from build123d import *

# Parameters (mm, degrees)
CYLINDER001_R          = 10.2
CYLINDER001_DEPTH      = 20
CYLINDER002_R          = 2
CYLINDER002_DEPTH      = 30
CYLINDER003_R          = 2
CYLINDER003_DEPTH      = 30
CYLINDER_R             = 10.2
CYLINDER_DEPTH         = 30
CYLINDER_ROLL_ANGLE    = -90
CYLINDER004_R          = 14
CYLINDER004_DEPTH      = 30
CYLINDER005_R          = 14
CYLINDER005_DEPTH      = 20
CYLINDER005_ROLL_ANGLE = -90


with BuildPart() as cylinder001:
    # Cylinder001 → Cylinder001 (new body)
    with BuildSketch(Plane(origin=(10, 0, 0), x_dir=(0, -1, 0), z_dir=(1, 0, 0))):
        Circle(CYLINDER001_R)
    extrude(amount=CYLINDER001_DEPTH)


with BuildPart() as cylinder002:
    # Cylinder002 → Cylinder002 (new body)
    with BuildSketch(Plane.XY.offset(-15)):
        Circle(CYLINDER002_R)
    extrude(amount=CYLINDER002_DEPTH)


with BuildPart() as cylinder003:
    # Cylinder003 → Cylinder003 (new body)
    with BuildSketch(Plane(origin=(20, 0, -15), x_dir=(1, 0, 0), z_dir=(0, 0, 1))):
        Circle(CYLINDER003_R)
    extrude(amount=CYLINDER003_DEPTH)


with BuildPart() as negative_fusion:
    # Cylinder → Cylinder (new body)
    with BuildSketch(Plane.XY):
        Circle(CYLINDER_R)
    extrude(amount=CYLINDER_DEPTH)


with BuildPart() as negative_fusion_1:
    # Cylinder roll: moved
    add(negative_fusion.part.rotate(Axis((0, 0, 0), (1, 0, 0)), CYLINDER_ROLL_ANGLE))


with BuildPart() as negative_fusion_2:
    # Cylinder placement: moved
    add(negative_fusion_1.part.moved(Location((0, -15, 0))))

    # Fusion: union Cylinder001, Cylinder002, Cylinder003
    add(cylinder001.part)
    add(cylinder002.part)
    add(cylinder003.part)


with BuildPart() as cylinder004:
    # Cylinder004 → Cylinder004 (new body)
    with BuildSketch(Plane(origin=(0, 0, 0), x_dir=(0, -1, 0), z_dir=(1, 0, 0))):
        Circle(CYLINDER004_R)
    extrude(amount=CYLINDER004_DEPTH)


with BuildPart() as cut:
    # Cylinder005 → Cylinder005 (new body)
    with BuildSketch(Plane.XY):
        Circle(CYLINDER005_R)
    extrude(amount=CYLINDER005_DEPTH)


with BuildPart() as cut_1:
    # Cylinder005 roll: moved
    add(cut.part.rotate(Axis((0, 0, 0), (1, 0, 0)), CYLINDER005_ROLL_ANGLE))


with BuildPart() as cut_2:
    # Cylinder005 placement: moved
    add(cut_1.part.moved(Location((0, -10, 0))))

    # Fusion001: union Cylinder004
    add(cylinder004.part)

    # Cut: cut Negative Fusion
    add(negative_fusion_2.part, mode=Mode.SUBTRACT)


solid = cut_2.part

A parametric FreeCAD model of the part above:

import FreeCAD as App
import Part
import Sketcher
Q = App.Units.Quantity

doc = App.newDocument("Part")
body = doc.addObject("PartDesign::Body", "Body")

# Sketch on YZ plane
sketch1 = doc.addObject("Sketcher::SketchObject", "Sketch")
body.addObject(sketch1)
sketch1.AttachmentSupport = (doc.YZ_Plane, [""])
sketch1.MapMode = "FlatFace"
sketch1.AttachmentOffset = App.Placement(App.Vector(0, 0, 10), App.Rotation())
sketch1.addGeometry(Part.Circle(App.Vector(0, 0, 0), App.Vector(0, 0, 1), 10.2), False)
sketch1.addConstraint(Sketcher.Constraint("Coincident", 0, 3, -1, 1))
sketch1.addConstraint(Sketcher.Constraint("Diameter", 0, Q("20.4 mm")))
pad1 = doc.addObject("PartDesign::Pad", "Pad")
body.addObject(pad1)
pad1.Profile = sketch1
pad1.Length = 20
body2 = doc.addObject("PartDesign::Body", "Body001")

# Sketch on XY plane
sketch2 = doc.addObject("Sketcher::SketchObject", "Sketch001")
body2.addObject(sketch2)
sketch2.AttachmentSupport = (doc.getObject("XY_Plane001"), [""])
sketch2.MapMode = "FlatFace"
sketch2.AttachmentOffset = App.Placement(App.Vector(0, 0, -15), App.Rotation())
sketch2.addGeometry(Part.Circle(App.Vector(0, 0, 0), App.Vector(0, 0, 1), 2), False)
sketch2.addConstraint(Sketcher.Constraint("Coincident", 0, 3, -1, 1))
sketch2.addConstraint(Sketcher.Constraint("Diameter", 0, Q("4 mm")))
pad2 = doc.addObject("PartDesign::Pad", "Pad001")
body2.addObject(pad2)
pad2.Profile = sketch2
pad2.Length = 30
body3 = doc.addObject("PartDesign::Body", "Body002")

# Sketch on XY plane
sketch3 = doc.addObject("Sketcher::SketchObject", "Sketch002")
body3.addObject(sketch3)
sketch3.AttachmentSupport = (doc.getObject("XY_Plane002"), [""])
sketch3.MapMode = "FlatFace"
sketch3.AttachmentOffset = App.Placement(App.Vector(0, 0, -15), App.Rotation())
sketch3.addGeometry(Part.Circle(App.Vector(20, 0, 0), App.Vector(0, 0, 1), 2), False)
sketch3.addConstraint(Sketcher.Constraint("PointOnObject", 0, 3, -1))
sketch3.addConstraint(Sketcher.Constraint("Diameter", 0, Q("4 mm")))
sketch3.addConstraint(Sketcher.Constraint("DistanceX", -1, 1, 0, 3, Q("20 mm")))
pad3 = doc.addObject("PartDesign::Pad", "Pad002")
body3.addObject(pad3)
pad3.Profile = sketch3
pad3.Length = 30
body4 = doc.addObject("PartDesign::Body", "Body003")

# Sketch on XY plane
sketch4 = doc.addObject("Sketcher::SketchObject", "Sketch003")
body4.addObject(sketch4)
sketch4.AttachmentSupport = (doc.getObject("XY_Plane003"), [""])
sketch4.MapMode = "FlatFace"
sketch4.addGeometry(Part.Circle(App.Vector(0, 0, 0), App.Vector(0, 0, 1), 10.2), False)
sketch4.addConstraint(Sketcher.Constraint("Coincident", 0, 3, -1, 1))
sketch4.addConstraint(Sketcher.Constraint("Diameter", 0, Q("20.4 mm")))
pad4 = doc.addObject("PartDesign::Pad", "Pad003")
body4.addObject(pad4)
pad4.Profile = sketch4
pad4.Length = 30
body5 = doc.addObject("PartDesign::Body", "Body004")
doc.recompute()

body4.Placement = App.Placement(App.Vector(0, 0, 0), App.Rotation(App.Vector(1, 0, 0), 270))
boolean = doc.addObject("PartDesign::Boolean", "Boolean")
body5.addObject(boolean)
boolean.Type = "Fuse"
boolean.addObjects([body4])
body6 = doc.addObject("PartDesign::Body", "Body005")
doc.recompute()

body5.Placement = App.Placement(App.Vector(0, -15, 0), App.Rotation(App.Vector(0, 0, 1), 0))
boolean2 = doc.addObject("PartDesign::Boolean", "Boolean001")
body6.addObject(boolean2)
boolean2.Type = "Fuse"
boolean2.addObjects([body5])
doc.recompute()

boolean3 = doc.addObject("PartDesign::Boolean", "Boolean002")
body6.addObject(boolean3)
boolean3.Type = "Fuse"
boolean3.addObjects([body])
doc.recompute()

boolean4 = doc.addObject("PartDesign::Boolean", "Boolean003")
body6.addObject(boolean4)
boolean4.Type = "Fuse"
boolean4.addObjects([body2])
doc.recompute()

boolean5 = doc.addObject("PartDesign::Boolean", "Boolean004")
body6.addObject(boolean5)
boolean5.Type = "Fuse"
boolean5.addObjects([body3])
body7 = doc.addObject("PartDesign::Body", "Body006")

# Sketch on YZ plane
sketch5 = doc.addObject("Sketcher::SketchObject", "Sketch004")
body7.addObject(sketch5)
sketch5.AttachmentSupport = (doc.getObject("YZ_Plane006"), [""])
sketch5.MapMode = "FlatFace"
sketch5.addGeometry(Part.Circle(App.Vector(0, 0, 0), App.Vector(0, 0, 1), 14), False)
sketch5.addConstraint(Sketcher.Constraint("Coincident", 0, 3, -1, 1))
sketch5.addConstraint(Sketcher.Constraint("Diameter", 0, Q("28 mm")))
pad5 = doc.addObject("PartDesign::Pad", "Pad004")
body7.addObject(pad5)
pad5.Profile = sketch5
pad5.Length = 30
body8 = doc.addObject("PartDesign::Body", "Body007")

# Sketch on XY plane
sketch6 = doc.addObject("Sketcher::SketchObject", "Sketch005")
body8.addObject(sketch6)
sketch6.AttachmentSupport = (doc.getObject("XY_Plane007"), [""])
sketch6.MapMode = "FlatFace"
sketch6.addGeometry(Part.Circle(App.Vector(0, 0, 0), App.Vector(0, 0, 1), 14), False)
sketch6.addConstraint(Sketcher.Constraint("Coincident", 0, 3, -1, 1))
sketch6.addConstraint(Sketcher.Constraint("Diameter", 0, Q("28 mm")))
pad6 = doc.addObject("PartDesign::Pad", "Pad005")
body8.addObject(pad6)
pad6.Profile = sketch6
pad6.Length = 20
body9 = doc.addObject("PartDesign::Body", "Body008")
doc.recompute()

body8.Placement = App.Placement(App.Vector(0, 0, 0), App.Rotation(App.Vector(1, 0, 0), 270))
boolean6 = doc.addObject("PartDesign::Boolean", "Boolean005")
body9.addObject(boolean6)
boolean6.Type = "Fuse"
boolean6.addObjects([body8])
body10 = doc.addObject("PartDesign::Body", "Body009")
doc.recompute()

body9.Placement = App.Placement(App.Vector(0, -10, 0), App.Rotation(App.Vector(0, 0, 1), 0))
boolean7 = doc.addObject("PartDesign::Boolean", "Boolean006")
body10.addObject(boolean7)
boolean7.Type = "Fuse"
boolean7.addObjects([body9])
doc.recompute()

boolean8 = doc.addObject("PartDesign::Boolean", "Boolean007")
body10.addObject(boolean8)
boolean8.Type = "Fuse"
boolean8.addObjects([body7])
doc.recompute()

boolean9 = doc.addObject("PartDesign::Boolean", "Boolean008")
body10.addObject(boolean9)
boolean9.Type = "Cut"
boolean9.addObjects([body6])

doc.recompute()
